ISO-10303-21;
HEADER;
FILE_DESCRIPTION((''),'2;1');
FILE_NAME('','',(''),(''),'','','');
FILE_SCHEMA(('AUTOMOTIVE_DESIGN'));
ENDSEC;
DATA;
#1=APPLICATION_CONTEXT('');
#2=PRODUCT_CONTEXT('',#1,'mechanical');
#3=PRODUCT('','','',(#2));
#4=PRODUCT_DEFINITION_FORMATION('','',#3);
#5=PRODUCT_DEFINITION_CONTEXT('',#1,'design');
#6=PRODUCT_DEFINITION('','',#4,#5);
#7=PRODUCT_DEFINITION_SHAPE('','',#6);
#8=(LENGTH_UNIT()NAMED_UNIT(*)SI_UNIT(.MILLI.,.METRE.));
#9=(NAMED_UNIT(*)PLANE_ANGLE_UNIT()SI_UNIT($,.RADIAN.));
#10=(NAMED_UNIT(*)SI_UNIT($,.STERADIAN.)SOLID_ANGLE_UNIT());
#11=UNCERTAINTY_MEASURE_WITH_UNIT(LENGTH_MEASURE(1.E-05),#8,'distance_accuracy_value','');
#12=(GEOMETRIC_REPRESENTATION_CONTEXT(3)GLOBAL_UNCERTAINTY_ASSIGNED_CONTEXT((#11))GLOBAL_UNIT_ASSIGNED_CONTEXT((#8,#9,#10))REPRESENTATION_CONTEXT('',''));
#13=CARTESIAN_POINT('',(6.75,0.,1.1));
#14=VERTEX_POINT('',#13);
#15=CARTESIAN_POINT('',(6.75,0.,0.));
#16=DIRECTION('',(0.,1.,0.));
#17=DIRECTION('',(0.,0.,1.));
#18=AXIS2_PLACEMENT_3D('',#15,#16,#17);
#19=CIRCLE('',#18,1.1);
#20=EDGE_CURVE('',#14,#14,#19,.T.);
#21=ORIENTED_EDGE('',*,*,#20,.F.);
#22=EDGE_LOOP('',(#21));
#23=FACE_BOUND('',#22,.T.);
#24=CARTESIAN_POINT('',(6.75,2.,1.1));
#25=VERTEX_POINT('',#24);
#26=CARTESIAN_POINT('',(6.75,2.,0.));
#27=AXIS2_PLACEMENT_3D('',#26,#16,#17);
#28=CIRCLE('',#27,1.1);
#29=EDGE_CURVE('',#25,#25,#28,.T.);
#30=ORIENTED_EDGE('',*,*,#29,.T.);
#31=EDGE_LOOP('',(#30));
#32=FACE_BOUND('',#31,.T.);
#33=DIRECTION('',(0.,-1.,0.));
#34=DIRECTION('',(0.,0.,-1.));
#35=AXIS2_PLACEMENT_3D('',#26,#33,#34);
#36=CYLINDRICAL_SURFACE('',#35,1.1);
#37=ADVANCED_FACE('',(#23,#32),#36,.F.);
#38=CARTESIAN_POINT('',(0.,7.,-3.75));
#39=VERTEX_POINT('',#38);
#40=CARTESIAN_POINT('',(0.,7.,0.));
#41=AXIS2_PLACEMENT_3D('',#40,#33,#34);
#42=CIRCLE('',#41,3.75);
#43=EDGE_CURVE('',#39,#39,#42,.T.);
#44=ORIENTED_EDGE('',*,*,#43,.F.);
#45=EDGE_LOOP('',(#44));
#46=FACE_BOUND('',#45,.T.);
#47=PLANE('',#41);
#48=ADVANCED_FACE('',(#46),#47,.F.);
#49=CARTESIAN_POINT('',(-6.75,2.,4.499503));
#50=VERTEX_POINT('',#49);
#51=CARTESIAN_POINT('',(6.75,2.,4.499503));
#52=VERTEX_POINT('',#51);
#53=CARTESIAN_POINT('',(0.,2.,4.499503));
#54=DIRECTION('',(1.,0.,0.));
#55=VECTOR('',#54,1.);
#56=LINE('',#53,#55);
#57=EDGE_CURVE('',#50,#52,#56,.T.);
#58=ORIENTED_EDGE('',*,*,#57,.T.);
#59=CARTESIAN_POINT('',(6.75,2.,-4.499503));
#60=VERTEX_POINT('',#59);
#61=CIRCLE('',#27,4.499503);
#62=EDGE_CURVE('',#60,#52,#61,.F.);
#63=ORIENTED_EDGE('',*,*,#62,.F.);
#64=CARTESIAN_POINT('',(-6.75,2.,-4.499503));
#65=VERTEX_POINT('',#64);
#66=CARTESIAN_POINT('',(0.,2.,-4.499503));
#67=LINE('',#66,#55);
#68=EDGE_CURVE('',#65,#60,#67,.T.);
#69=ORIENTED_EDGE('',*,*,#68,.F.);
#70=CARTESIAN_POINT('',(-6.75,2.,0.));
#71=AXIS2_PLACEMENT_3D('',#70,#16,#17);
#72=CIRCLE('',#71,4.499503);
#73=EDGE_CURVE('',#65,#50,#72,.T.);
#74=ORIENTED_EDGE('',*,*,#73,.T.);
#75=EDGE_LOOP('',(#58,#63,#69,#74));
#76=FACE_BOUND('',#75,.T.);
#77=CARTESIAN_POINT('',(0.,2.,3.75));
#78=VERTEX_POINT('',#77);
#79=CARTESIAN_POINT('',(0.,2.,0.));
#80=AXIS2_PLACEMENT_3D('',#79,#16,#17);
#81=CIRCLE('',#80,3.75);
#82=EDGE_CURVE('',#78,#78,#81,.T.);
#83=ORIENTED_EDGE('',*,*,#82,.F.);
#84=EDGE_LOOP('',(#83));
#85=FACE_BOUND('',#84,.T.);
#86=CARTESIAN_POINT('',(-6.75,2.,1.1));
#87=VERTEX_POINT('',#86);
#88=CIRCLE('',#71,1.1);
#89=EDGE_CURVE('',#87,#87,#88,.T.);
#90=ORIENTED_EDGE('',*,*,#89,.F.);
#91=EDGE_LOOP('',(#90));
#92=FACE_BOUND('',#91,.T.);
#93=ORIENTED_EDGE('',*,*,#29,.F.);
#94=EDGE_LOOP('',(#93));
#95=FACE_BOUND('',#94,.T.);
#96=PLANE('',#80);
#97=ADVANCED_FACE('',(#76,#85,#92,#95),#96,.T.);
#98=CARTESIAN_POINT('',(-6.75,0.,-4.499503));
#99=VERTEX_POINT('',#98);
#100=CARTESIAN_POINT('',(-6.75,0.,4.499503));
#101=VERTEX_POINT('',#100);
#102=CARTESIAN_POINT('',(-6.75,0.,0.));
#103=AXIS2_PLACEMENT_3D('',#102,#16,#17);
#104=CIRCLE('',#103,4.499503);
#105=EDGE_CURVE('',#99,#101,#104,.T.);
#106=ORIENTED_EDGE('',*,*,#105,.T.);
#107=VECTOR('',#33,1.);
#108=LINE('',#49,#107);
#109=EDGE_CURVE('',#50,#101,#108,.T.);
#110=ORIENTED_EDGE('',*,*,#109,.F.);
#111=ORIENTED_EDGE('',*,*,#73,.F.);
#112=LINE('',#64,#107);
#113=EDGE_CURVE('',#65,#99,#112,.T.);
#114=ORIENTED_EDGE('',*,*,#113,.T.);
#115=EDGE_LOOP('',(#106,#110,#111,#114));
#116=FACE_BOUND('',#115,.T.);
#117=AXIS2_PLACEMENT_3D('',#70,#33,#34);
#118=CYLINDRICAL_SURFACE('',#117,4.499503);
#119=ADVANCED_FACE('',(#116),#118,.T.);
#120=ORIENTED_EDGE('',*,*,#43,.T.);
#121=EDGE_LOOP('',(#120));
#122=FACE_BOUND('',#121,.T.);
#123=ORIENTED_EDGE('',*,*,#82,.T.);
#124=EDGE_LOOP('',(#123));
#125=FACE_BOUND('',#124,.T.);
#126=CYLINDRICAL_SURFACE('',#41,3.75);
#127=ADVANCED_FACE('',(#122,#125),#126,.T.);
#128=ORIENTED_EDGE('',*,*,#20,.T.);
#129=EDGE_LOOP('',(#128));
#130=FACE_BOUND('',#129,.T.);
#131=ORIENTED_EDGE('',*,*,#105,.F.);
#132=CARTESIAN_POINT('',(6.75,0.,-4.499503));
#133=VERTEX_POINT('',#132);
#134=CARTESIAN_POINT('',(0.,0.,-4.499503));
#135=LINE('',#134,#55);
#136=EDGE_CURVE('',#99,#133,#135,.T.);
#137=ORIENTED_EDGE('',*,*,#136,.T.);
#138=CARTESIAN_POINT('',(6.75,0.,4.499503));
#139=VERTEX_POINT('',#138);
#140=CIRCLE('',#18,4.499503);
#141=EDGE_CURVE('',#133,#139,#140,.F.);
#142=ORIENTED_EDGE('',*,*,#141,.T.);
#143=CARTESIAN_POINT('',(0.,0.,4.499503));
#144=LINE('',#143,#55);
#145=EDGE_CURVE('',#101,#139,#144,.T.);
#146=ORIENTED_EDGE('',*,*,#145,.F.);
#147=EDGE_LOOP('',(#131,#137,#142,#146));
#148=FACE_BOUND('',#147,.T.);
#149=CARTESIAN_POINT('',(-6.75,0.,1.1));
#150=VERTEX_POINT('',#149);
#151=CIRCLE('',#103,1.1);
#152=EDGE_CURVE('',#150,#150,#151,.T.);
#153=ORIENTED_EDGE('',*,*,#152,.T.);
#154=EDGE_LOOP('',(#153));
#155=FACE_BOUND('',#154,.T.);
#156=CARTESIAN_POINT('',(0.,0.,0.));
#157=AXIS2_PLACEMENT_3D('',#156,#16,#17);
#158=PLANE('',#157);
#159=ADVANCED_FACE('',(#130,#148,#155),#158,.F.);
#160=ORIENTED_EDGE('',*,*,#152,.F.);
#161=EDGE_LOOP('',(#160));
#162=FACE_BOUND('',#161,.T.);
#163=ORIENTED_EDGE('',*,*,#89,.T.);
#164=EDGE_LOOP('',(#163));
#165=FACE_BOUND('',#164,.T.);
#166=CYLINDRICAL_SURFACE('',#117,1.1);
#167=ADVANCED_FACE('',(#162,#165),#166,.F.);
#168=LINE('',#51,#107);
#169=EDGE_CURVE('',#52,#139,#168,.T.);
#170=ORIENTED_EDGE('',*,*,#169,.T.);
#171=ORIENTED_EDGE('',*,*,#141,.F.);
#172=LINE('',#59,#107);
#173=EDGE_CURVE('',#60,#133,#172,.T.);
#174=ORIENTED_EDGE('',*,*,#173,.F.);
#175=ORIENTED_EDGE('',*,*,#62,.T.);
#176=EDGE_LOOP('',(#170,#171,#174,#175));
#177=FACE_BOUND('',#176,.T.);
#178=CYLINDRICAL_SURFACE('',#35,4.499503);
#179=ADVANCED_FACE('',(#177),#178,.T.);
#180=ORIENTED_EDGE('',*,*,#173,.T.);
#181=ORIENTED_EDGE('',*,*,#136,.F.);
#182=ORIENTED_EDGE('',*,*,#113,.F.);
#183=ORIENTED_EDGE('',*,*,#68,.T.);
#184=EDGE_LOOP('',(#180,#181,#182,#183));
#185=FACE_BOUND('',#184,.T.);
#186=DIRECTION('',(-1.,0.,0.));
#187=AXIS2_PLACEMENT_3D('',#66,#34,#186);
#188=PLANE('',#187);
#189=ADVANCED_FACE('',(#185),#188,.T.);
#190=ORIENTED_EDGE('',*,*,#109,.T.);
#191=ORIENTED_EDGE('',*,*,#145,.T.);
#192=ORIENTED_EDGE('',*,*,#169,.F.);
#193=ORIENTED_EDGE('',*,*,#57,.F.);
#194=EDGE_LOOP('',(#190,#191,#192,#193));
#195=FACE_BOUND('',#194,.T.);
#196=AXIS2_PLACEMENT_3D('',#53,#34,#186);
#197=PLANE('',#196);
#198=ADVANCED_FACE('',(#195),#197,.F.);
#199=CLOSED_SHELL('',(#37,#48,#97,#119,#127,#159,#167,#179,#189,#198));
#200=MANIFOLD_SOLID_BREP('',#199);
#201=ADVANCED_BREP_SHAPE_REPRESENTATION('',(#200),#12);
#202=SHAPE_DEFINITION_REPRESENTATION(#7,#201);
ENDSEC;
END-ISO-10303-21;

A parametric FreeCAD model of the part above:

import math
import FreeCAD as App
import Part
import Sketcher
from FreeCAD import Vector

doc = App.newDocument("Part")
body = doc.addObject("PartDesign::Body", "Body")

sketch1 = body.newObject("Sketcher::SketchObject", "Sketch")
sketch1.AttachmentSupport = (doc.getObject("XZ_Plane"), [""])
sketch1.MapMode = "FlatFace"
sketch1.addGeometry([
    Part.LineSegment(Vector(6.75, -4.499503, 0), Vector(-6.75, -4.499503, 0)),
    Part.ArcOfCircle(Part.Circle(Vector(-6.75, 0, 0), Vector(0, 0, 1), 4.499503), math.radians(90), math.radians(270)),
    Part.LineSegment(Vector(-6.75, 4.499503, 0), Vector(6.75, 4.499503, 0)),
    Part.ArcOfCircle(Part.Circle(Vector(6.75, 0, 0), Vector(0, 0, 1), 4.499503), math.radians(-90), math.radians(90)),
    Part.Circle(Vector(6.75, 0, 0), Vector(0, 0, 1), 1.1),
    Part.Circle(Vector(0, 0, 0), Vector(0, 0, 1), 3.75),
    Part.Circle(Vector(-6.75, 0, 0), Vector(0, 0, 1), 1.1),
], False)
sketch1.addConstraint([
    Sketcher.Constraint("Tangent", 0, 2, 1, 2),
    Sketcher.Constraint("Tangent", 1, 1, 2, 1),
    Sketcher.Constraint("Tangent", 2, 2, 3, 2),
    Sketcher.Constraint("Tangent", 3, 1, 0, 1),
    Sketcher.Constraint("Horizontal", 0),
    Sketcher.Constraint("Horizontal", 2),
    Sketcher.Constraint("Coincident", 5, 3, -1, 1),
    Sketcher.Constraint("Coincident", 4, 3, 3, 3),
    Sketcher.Constraint("Coincident", 6, 3, 1, 3),
    Sketcher.Constraint("Equal", 4, 6),
    Sketcher.Constraint("Symmetric", 1, 3, 3, 3, -1, 1),
    Sketcher.Constraint("Diameter", 4, 2.2),
    Sketcher.Constraint("Diameter", 5, 7.5),
    Sketcher.Constraint("DistanceX", 0, 2, 0, 1, 13.5),
    Sketcher.Constraint("Radius", 1, 4.499503),
])
pad1 = body.newObject("PartDesign::Pad", "Pad")
pad1.Profile = sketch1
pad1.Length = 2
pad1.Reversed = True

sketch2 = body.newObject("Sketcher::SketchObject", "Sketch001")
sketch2.AttachmentSupport = (doc.getObject("XZ_Plane"), [""])
sketch2.MapMode = "FlatFace"
sketch2.addGeometry(Part.Circle(Vector(0, 0, 0), Vector(0, 0, 1), 3.75), False)
sketch2.addConstraint([
    Sketcher.Constraint("Coincident", 0, 3, -1, 1),
    Sketcher.Constraint("Diameter", 0, 7.5),
])
pad2 = body.newObject("PartDesign::Pad", "Pad001")
pad2.Profile = sketch2
pad2.Length = 7
pad2.Reversed = True

doc.recompute()
